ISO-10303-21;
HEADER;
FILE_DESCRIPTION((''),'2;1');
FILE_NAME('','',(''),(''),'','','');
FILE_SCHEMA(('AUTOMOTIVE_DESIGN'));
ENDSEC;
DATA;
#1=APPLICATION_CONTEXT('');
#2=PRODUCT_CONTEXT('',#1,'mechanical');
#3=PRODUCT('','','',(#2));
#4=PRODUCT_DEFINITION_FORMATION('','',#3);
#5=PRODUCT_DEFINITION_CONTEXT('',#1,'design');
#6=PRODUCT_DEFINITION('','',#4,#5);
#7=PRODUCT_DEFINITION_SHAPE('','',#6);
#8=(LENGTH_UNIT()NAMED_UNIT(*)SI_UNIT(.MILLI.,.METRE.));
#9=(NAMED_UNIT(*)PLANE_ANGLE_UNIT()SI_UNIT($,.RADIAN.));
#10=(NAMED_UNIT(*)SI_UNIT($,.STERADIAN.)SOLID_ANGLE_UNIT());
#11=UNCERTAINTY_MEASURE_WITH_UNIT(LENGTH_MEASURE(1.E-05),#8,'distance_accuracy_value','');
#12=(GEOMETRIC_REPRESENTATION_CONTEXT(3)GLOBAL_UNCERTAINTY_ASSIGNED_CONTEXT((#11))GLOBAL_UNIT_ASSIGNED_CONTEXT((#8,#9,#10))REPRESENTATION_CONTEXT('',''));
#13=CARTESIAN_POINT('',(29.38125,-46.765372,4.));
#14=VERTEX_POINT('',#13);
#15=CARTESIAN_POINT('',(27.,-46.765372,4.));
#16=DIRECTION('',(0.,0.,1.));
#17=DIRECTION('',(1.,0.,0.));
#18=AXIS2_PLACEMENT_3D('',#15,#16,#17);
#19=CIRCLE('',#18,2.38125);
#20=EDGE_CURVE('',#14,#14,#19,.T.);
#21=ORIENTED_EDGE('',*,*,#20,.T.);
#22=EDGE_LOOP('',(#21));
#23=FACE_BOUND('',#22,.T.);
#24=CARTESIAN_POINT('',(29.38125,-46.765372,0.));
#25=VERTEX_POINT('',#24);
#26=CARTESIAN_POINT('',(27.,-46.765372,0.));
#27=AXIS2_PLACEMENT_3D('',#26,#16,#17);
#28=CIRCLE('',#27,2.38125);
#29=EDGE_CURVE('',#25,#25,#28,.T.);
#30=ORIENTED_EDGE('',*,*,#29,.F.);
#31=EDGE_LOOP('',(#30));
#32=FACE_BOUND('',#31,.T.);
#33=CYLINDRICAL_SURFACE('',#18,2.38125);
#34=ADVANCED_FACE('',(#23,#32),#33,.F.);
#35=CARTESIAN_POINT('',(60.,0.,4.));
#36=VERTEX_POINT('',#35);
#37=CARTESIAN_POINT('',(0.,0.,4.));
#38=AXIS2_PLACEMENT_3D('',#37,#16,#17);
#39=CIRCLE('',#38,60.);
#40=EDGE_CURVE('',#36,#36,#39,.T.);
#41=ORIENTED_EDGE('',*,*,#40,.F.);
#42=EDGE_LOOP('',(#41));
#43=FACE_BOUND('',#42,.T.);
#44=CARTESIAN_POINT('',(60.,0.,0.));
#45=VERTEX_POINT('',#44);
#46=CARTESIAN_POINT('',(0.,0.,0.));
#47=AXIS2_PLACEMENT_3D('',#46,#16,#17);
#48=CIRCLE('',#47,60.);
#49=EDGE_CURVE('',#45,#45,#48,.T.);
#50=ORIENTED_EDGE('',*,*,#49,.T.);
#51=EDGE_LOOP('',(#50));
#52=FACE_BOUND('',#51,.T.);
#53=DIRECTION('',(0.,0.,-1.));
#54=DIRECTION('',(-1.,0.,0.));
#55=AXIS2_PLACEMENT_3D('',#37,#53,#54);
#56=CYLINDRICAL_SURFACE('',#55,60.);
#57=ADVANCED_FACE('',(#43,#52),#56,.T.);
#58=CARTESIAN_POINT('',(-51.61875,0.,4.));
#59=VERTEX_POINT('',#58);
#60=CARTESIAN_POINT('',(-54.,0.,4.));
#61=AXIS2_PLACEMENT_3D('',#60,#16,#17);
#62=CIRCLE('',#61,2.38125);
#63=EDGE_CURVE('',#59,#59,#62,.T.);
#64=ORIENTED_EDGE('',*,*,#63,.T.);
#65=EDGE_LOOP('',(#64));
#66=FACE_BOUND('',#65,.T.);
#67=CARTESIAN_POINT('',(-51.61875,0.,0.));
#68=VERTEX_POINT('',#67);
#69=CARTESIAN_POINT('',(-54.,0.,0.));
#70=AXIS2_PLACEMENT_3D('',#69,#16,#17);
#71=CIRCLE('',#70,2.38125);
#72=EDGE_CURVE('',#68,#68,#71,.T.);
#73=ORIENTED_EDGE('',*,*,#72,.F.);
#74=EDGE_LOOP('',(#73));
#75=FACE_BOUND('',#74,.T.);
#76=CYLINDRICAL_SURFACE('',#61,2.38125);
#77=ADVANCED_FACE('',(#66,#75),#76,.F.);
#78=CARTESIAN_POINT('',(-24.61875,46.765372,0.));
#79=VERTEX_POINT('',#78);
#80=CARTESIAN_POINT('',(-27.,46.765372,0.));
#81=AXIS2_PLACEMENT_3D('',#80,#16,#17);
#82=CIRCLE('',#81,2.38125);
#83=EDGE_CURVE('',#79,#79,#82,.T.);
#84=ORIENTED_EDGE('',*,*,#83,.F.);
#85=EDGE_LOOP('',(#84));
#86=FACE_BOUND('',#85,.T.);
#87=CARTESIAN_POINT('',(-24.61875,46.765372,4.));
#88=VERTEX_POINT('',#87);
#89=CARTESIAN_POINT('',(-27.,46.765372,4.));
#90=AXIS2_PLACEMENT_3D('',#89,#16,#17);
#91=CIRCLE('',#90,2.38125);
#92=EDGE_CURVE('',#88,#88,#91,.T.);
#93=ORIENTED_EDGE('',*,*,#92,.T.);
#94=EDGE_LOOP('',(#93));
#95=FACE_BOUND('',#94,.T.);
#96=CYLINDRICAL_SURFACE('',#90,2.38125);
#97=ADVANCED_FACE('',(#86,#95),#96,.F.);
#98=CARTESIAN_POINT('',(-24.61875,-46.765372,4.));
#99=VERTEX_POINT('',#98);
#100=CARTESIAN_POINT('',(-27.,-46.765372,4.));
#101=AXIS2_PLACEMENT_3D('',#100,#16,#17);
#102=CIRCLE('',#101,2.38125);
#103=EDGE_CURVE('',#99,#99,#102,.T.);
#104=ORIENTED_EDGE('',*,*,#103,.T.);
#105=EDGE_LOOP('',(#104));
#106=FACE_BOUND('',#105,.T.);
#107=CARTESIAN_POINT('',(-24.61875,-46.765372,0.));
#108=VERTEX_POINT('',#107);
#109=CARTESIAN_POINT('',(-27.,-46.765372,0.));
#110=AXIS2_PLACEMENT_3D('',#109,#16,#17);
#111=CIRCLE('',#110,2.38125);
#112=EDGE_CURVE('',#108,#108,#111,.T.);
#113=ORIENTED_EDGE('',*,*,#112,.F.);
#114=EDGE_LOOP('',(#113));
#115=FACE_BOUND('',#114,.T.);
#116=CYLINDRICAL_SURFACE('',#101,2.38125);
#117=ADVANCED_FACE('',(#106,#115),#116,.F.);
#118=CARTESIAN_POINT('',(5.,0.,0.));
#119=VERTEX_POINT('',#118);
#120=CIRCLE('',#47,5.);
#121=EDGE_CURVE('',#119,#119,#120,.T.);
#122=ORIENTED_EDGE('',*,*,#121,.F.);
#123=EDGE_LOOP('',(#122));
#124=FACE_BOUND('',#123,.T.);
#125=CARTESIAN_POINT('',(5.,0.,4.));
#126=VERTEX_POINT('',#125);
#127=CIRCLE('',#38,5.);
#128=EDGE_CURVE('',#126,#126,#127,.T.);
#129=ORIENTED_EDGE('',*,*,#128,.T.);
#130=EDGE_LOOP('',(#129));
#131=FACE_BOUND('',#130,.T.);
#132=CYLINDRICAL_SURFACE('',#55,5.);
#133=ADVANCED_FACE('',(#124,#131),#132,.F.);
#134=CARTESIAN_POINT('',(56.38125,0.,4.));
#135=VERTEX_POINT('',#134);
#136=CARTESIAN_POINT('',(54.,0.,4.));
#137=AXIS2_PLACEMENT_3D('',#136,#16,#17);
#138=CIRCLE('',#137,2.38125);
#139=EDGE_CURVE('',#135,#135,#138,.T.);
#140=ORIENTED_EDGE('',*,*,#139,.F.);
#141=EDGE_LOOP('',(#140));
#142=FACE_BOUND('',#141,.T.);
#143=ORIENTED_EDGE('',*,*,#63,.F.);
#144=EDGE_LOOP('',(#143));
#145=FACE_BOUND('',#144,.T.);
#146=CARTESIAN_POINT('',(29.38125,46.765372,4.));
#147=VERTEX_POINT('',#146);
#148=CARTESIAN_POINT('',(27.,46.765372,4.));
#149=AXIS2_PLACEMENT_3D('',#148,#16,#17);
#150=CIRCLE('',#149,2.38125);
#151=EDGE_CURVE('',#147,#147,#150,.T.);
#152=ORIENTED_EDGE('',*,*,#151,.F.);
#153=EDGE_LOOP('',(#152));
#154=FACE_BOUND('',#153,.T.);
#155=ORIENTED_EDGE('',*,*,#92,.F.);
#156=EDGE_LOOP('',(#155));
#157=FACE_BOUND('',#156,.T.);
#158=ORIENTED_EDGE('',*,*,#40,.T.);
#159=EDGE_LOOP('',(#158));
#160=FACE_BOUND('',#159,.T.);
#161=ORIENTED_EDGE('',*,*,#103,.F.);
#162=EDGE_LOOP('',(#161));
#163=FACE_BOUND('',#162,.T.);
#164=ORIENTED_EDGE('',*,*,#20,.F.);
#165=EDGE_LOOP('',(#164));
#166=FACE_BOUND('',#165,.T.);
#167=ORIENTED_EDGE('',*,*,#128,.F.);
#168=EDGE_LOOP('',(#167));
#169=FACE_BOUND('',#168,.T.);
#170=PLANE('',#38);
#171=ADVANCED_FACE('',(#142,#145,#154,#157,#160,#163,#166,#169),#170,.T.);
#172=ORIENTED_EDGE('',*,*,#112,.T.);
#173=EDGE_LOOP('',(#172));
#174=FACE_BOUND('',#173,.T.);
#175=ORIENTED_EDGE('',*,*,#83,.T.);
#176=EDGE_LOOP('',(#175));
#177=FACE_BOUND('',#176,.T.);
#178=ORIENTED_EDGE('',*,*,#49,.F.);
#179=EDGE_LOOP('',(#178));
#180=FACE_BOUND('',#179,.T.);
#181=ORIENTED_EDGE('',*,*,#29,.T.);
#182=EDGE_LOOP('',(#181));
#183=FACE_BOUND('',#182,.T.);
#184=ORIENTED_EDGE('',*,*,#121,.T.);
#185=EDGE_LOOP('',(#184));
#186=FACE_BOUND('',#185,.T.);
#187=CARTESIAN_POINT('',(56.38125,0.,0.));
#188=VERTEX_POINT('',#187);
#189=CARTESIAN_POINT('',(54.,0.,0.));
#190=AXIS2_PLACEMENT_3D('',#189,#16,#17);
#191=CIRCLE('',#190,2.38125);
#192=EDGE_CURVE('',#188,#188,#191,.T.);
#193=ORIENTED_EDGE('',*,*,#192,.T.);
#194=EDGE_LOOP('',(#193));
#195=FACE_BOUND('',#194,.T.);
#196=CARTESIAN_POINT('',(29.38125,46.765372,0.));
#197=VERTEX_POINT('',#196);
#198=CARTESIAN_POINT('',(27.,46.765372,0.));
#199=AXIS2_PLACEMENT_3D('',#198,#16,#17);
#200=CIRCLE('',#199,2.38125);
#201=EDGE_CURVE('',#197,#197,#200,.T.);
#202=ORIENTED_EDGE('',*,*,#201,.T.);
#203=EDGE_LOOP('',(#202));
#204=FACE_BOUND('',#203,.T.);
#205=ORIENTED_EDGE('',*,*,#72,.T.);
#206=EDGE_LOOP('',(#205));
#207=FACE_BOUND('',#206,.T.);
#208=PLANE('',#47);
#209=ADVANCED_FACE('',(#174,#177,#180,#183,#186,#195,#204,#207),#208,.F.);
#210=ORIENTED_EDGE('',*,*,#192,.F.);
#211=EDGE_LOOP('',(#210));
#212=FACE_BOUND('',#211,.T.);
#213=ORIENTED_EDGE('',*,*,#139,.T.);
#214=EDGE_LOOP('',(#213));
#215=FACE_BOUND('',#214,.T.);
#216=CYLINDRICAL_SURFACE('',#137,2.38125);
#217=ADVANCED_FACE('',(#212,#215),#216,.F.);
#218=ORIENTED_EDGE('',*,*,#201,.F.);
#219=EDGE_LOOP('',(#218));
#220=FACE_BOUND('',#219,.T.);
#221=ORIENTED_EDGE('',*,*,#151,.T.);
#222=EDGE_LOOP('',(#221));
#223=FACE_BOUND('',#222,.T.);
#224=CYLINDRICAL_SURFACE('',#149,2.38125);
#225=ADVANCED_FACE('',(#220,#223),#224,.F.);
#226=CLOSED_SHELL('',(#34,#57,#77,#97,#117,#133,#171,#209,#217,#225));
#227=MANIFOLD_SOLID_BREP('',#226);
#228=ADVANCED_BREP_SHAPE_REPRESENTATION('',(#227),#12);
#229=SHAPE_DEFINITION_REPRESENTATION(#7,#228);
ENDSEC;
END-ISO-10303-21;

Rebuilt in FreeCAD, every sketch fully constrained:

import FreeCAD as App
import Part
import Sketcher
from FreeCAD import Vector

doc = App.newDocument("Part")
params = doc.addObject("Spreadsheet::Sheet", "Params")
for row, (alias, value) in enumerate([
    ("sketch1_diameter", "120 mm"),
    ("sketch1_diameter2", "10 mm"),
    ("pad1_length", "4 mm"),
    ("hole_diameter", "4.7625 mm"),
], start=1):
    params.set(f"A{row}", alias)
    params.set(f"B{row}", "=" + value)
    params.setAlias(f"B{row}", alias)

body = doc.addObject("PartDesign::Body", "Body")

sketch1 = body.newObject("Sketcher::SketchObject", "Sketch")
sketch1.AttachmentSupport = (doc.getObject("XY_Plane"), [""])
sketch1.MapMode = "FlatFace"
sketch1.addGeometry([
    Part.Circle(Vector(0, 0, 0), Vector(0, 0, 1), 60),
    Part.Circle(Vector(0, 0, 0), Vector(0, 0, 1), 5),
], False)
sketch1.addConstraint([
    Sketcher.Constraint("Coincident", 0, 3, -1, 1),
    Sketcher.Constraint("Coincident", 1, 3, -1, 1),
    Sketcher.Constraint("Diameter", 0, 120.0),
    Sketcher.Constraint("Diameter", 1, 10.0),
])
sketch1.setExpression("Constraints[2]", "Params.sketch1_diameter")
sketch1.setExpression("Constraints[3]", "Params.sketch1_diameter2")
pad1 = body.newObject("PartDesign::Pad", "Pad")
pad1.Profile = sketch1
pad1.setExpression("Length", "Params.pad1_length")

sketch2 = body.newObject("Sketcher::SketchObject", "Sketch001")
sketch2.AttachmentSupport = (doc.getObject("XY_Plane"), [""])
sketch2.MapMode = "FlatFace"
sketch2.AttachmentOffset = App.Placement(Vector(0, 0, 4), App.Rotation())
sketch2.addGeometry([
    Part.Circle(Vector(-54, 0, 0), Vector(0, 0, 1), 2.4),
    Part.Circle(Vector(54, 0, 0), Vector(0, 0, 1), 2.4),
    Part.Circle(Vector(-27, 46.8, 0), Vector(0, 0, 1), 2.4),
    Part.Circle(Vector(-27, -46.8, 0), Vector(0, 0, 1), 2.4),
    Part.Circle(Vector(27, 46.8, 0), Vector(0, 0, 1), 2.4),
    Part.Circle(Vector(27, -46.8, 0), Vector(0, 0, 1), 2.4),
], False)
sketch2.addConstraint([
    Sketcher.Constraint("Equal", 0, 1),
    Sketcher.Constraint("Equal", 1, 2),
    Sketcher.Constraint("Equal", 2, 3),
    Sketcher.Constraint("Equal", 3, 4),
    Sketcher.Constraint("Equal", 4, 5),
    Sketcher.Constraint("Symmetric", 0, 3, 1, 3, -1, 1),
    Sketcher.Constraint("Symmetric", 3, 3, 4, 3, -1, 1),
    Sketcher.Constraint("Symmetric", 2, 3, 5, 3, -1, 1),
    Sketcher.Constraint("Symmetric", 2, 3, 4, 3, -2),
    Sketcher.Constraint("PointOnObject", 0, 3, -1),
    Sketcher.Constraint("DistanceX", 0, 3, -1, 1, 54.0),
    Sketcher.Constraint("DistanceX", 2, 3, -1, 1, 27.0),
    Sketcher.Constraint("Diameter", 0, 4.7625),
    Sketcher.Constraint("DistanceY", -1, 1, 2, 3, 46.765372),
])
doc.recompute()
hole = body.newObject("PartDesign::Hole", "Hole")
hole.Profile = sketch2
hole.ThreadType = "None"
hole.setExpression("Diameter", "Params.hole_diameter")
hole.DepthType = "ThroughAll"

doc.recompute()
